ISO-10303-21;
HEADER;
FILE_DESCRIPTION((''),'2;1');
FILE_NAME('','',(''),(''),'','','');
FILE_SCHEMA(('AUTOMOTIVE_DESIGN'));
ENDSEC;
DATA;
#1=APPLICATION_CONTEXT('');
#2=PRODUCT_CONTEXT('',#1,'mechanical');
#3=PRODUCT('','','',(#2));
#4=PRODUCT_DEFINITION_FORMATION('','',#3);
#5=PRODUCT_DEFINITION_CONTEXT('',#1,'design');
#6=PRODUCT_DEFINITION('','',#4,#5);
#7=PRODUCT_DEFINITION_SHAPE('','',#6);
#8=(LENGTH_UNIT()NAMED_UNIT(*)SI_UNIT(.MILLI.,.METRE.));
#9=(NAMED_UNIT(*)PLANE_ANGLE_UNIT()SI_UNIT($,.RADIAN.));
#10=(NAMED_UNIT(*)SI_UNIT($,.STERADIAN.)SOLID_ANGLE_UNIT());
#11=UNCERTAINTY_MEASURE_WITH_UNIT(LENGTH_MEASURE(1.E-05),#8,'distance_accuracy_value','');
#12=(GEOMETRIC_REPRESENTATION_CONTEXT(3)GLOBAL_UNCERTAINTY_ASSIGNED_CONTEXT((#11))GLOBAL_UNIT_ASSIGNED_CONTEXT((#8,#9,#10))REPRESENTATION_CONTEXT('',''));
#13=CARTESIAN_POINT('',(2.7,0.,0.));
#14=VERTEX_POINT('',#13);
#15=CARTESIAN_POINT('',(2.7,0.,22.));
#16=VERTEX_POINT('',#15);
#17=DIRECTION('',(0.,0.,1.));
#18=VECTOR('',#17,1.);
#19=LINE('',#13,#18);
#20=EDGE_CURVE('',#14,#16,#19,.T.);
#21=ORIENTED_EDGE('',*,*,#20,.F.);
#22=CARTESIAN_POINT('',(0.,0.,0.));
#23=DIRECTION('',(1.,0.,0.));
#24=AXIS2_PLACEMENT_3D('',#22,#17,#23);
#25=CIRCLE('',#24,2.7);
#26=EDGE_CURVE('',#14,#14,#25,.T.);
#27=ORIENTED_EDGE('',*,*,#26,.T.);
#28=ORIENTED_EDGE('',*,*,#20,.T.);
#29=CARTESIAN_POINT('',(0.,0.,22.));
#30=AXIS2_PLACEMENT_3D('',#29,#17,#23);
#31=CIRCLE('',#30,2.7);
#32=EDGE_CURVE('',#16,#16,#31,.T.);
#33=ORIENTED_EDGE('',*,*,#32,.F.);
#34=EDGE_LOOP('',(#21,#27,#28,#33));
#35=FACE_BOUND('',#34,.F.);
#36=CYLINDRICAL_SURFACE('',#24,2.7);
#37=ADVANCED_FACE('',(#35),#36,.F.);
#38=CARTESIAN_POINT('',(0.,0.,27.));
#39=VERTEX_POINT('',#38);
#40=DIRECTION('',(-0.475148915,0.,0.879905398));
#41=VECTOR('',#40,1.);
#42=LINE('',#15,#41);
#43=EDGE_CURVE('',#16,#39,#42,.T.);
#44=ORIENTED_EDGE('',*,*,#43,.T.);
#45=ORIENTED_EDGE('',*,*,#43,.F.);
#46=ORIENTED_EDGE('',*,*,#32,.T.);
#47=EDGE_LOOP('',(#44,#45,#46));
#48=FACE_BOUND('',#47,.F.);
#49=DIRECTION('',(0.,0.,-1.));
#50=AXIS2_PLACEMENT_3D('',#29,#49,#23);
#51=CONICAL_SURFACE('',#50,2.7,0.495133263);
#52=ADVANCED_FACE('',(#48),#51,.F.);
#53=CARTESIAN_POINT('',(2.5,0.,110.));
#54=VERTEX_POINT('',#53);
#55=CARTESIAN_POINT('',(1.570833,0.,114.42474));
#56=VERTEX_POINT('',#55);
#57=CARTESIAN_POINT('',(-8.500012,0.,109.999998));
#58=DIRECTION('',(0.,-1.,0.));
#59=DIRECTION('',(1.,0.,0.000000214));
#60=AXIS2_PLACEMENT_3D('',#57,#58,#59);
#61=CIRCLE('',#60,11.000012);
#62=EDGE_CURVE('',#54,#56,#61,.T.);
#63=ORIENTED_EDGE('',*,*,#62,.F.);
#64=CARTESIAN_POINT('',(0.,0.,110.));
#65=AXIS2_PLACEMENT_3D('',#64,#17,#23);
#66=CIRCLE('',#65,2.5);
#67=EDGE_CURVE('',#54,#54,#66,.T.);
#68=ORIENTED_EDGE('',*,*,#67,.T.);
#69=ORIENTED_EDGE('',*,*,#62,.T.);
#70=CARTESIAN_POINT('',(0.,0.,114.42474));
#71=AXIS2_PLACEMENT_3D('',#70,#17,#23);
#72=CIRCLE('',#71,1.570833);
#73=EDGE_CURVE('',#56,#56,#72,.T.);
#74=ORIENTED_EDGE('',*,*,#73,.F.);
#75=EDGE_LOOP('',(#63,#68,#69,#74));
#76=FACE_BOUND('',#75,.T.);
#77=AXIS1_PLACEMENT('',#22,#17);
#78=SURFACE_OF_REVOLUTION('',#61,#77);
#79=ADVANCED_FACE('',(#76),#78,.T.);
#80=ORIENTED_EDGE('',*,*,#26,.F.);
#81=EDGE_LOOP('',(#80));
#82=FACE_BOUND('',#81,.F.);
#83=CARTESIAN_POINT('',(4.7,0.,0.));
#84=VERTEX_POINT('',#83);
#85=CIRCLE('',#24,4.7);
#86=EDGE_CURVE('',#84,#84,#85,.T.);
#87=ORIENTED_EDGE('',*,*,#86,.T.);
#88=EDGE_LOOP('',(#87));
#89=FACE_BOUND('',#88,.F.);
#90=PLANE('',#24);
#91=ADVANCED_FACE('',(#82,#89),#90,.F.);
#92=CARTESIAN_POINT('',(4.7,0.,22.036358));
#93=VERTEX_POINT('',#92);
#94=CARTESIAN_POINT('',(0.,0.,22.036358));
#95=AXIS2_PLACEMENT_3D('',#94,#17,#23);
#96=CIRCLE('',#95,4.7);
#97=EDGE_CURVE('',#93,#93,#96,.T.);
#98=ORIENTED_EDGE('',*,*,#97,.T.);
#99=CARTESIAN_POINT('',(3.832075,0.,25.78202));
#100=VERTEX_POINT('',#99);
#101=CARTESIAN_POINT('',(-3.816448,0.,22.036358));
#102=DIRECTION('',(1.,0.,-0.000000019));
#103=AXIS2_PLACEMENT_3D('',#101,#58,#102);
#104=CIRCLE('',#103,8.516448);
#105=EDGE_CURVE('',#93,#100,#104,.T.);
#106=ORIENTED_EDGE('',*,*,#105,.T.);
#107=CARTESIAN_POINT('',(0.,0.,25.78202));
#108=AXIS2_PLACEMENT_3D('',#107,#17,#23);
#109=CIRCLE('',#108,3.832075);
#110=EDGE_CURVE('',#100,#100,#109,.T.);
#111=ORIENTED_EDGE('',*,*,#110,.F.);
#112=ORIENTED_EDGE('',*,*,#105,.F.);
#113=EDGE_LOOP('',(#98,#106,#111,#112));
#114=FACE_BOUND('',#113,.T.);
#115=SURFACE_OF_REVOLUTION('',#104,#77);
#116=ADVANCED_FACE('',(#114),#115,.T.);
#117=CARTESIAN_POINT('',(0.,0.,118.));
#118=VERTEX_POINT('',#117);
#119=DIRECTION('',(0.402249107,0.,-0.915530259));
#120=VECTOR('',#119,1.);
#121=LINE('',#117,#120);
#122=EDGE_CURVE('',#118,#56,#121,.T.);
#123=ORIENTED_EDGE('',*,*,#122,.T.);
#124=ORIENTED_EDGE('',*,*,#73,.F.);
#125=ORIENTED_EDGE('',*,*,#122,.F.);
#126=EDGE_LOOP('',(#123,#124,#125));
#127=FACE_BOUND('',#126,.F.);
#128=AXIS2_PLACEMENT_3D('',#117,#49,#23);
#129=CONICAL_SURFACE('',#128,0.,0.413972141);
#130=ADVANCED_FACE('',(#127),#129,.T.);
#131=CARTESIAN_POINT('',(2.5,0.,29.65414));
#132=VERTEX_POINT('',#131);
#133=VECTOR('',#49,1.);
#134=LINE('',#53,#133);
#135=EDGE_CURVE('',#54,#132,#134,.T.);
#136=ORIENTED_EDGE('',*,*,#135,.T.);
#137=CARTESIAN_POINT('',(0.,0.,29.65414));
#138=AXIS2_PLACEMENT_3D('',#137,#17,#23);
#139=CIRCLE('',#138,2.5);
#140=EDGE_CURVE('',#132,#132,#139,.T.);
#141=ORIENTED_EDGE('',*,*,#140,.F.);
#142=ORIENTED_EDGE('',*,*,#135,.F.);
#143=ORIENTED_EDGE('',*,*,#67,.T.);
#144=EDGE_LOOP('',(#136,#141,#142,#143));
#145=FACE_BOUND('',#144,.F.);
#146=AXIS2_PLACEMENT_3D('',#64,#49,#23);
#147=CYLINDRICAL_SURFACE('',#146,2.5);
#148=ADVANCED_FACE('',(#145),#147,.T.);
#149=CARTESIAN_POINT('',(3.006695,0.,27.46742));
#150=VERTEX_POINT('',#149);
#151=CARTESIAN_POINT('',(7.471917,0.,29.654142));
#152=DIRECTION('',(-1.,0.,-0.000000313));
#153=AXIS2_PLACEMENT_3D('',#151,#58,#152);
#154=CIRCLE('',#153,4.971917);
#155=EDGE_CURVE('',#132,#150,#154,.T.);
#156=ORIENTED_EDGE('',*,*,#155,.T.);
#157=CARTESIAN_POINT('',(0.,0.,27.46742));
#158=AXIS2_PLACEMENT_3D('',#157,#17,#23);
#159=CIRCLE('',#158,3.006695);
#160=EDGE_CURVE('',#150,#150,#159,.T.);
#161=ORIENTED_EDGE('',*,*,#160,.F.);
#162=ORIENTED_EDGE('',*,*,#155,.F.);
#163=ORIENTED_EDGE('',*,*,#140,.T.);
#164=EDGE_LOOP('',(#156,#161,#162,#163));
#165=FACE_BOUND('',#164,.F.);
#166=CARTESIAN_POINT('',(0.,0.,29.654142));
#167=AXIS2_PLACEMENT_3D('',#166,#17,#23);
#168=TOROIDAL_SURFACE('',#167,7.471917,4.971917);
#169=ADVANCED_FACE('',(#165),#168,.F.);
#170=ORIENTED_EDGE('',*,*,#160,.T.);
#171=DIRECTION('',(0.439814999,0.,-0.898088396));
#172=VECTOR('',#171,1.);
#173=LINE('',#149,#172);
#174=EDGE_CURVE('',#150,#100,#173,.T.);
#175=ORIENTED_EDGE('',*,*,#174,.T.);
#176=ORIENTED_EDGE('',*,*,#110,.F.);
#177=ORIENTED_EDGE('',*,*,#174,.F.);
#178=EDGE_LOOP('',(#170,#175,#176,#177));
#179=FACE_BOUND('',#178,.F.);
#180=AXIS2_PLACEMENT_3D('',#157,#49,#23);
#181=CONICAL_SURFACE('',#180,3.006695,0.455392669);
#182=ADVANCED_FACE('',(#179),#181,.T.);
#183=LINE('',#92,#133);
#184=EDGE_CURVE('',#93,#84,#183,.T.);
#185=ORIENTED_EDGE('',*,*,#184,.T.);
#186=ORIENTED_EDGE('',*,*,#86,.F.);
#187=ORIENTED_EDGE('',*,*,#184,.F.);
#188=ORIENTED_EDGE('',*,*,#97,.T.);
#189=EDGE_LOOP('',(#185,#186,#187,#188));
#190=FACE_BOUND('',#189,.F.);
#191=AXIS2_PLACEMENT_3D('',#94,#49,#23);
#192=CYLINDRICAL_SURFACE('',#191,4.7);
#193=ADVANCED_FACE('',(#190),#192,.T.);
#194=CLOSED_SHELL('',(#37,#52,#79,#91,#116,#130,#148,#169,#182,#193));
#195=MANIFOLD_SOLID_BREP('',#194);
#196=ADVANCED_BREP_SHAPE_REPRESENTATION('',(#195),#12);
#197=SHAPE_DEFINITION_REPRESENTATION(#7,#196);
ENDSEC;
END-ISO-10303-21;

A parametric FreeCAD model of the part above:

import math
import FreeCAD as App
import Part
import Sketcher

V = App.Vector
Q = App.Units.Quantity

doc = App.newDocument("Part")
params = doc.addObject("Spreadsheet::Sheet", "Params")
for row, (alias, value) in enumerate([
    ("sketch1_width", "2 mm"),
    ("sketch1_height", "22 mm"),
    ("sketch1_height2", "91 mm"),
    ("revolution_angle", "360 deg"),
], start=1):
    params.set(f"A{row}", alias)
    params.set(f"B{row}", "=" + value)
    params.setAlias(f"B{row}", alias)

body = doc.addObject("PartDesign::Body", "Body")

sketch1 = doc.addObject("Sketcher::SketchObject", "Sketch")
body.addObject(sketch1)
sketch1.AttachmentSupport = (doc.XZ_Plane, [""])
sketch1.MapMode = "FlatFace"
sketch1.addGeometry([
    Part.LineSegment(V(2.7, 22, 0), V(2.7, 0, 0)),
    Part.LineSegment(V(2.7, 0, 0), V(4.7, 0, 0)),
    Part.LineSegment(V(4.7, 0, 0), V(4.7, 22, 0)),
    Part.ArcOfCircle(Part.Circle(V(-3.8, 22, 0), V(0, 0, 1), 8.5), math.radians(0), math.radians(26)),
    Part.LineSegment(V(3.8, 25.8, 0), V(3, 27.5, 0)),
    Part.ArcOfCircle(Part.Circle(V(7.5, 29.7, 0), V(0, 0, 1), 5), math.radians(-180), math.radians(-154)),
    Part.LineSegment(V(2.5, 29.7, 0), V(2.5, 110, 0)),
    Part.ArcOfCircle(Part.Circle(V(-8.5, 110, 0), V(0, 0, 1), 11), math.radians(0), math.radians(24)),
    Part.LineSegment(V(1.6, 114.4, 0), V(0, 118, 0)),
    Part.LineSegment(V(0, 118, 0), V(0, 27, 0)),
    Part.LineSegment(V(0, 27, 0), V(2.7, 22, 0)),
], False)
sketch1.addConstraint([
    Sketcher.Constraint("Coincident", 0, 2, 1, 1),
    Sketcher.Constraint("Coincident", 1, 2, 2, 1),
    Sketcher.Constraint("Tangent", 2, 2, 3, 1),
    Sketcher.Constraint("Tangent", 3, 2, 4, 1),
    Sketcher.Constraint("Tangent", 4, 2, 5, 2),
    Sketcher.Constraint("Tangent", 5, 1, 6, 1),
    Sketcher.Constraint("Tangent", 6, 2, 7, 1),
    Sketcher.Constraint("Tangent", 7, 2, 8, 1),
    Sketcher.Constraint("Coincident", 8, 2, 9, 1),
    Sketcher.Constraint("Coincident", 9, 2, 10, 1),
    Sketcher.Constraint("Coincident", 10, 2, 0, 1),
    Sketcher.Constraint("Vertical", 0),
    Sketcher.Constraint("Horizontal", 1),
    Sketcher.Constraint("Vertical", 2),
    Sketcher.Constraint("Vertical", 6),
    Sketcher.Constraint("Vertical", 9),
    Sketcher.Constraint("PointOnObject", 0, 2, -1),
    Sketcher.Constraint("PointOnObject", 8, 2, -2),
    Sketcher.Constraint("DistanceX", 1, 1, 1, 2, Q("2 mm")),
    Sketcher.Constraint("DistanceY", 0, 2, 0, 1, Q("22 mm")),
    Sketcher.Constraint("DistanceY", 9, 2, 9, 1, Q("91 mm")),
    Sketcher.Constraint("DistanceY", -1, 1, 6, 2, Q("110 mm")),
    Sketcher.Constraint("DistanceY", -1, 1, 8, 2, Q("118 mm")),
    Sketcher.Constraint("DistanceX", -1, 1, 0, 2, Q("2.7 mm")),
    Sketcher.Constraint("DistanceX", -1, 1, 5, 1, Q("2.5 mm")),
    Sketcher.Constraint("Radius", 3, Q("8.516448 mm")),
    Sketcher.Constraint("Radius", 7, Q("11.000012 mm")),
    Sketcher.Constraint("Radius", 5, Q("4.971917 mm")),
    Sketcher.Constraint("DistanceY", 2, 1, 2, 2, Q("22.036358 mm")),
    Sketcher.Constraint("DistanceY", 6, 1, 6, 2, Q("80.34586 mm")),
])
sketch1.setExpression("Constraints[18]", "Params.sketch1_width")
sketch1.setExpression("Constraints[19]", "Params.sketch1_height")
sketch1.setExpression("Constraints[20]", "Params.sketch1_height2")
revolution = doc.addObject("PartDesign::Revolution", "Revolution")
body.addObject(revolution)
revolution.Profile = sketch1
revolution.ReferenceAxis = (sketch1, ["V_Axis"])
revolution.setExpression("Angle", "Params.revolution_angle")

doc.recompute()
